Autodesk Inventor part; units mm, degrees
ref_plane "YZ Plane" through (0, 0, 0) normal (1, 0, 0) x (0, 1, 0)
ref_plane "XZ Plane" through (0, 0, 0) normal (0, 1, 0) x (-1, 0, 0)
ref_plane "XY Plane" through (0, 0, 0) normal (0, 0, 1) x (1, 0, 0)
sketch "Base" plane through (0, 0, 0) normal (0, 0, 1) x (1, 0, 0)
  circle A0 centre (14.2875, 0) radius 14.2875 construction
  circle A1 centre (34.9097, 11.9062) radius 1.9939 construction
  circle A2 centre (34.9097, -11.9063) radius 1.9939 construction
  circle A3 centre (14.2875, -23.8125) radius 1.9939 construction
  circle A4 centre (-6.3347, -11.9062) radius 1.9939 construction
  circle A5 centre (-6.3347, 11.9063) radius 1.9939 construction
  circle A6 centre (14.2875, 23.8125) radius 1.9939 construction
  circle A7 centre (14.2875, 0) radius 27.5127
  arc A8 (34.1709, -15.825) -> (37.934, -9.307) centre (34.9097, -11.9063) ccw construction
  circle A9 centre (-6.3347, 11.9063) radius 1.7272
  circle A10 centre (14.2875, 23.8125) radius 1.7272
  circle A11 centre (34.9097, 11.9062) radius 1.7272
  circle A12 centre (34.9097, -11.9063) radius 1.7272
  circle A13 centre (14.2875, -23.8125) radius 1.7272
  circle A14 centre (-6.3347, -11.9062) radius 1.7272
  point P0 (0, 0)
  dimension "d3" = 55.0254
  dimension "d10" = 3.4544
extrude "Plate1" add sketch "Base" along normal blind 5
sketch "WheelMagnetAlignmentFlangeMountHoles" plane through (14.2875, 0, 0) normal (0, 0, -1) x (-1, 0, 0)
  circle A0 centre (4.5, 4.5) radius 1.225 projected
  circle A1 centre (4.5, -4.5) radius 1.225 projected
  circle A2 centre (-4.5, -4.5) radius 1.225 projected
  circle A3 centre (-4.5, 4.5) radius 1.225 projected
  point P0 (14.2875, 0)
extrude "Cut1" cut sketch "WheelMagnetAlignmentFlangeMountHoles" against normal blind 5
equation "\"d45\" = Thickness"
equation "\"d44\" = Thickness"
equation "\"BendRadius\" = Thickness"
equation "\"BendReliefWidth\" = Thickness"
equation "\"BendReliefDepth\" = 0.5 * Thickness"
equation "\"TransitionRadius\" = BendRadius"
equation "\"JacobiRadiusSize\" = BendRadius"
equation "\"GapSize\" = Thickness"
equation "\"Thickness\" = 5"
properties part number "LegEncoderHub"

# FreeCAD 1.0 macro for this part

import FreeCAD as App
import Part
import Sketcher
Q = App.Units.Quantity

doc = App.newDocument("Part")
params = doc.addObject("Spreadsheet::Sheet", "Params")
for row, (alias, value) in enumerate([
    ("pad1_length", "5 mm"),
    ("sketch2_diameter", "2.45 mm"),
    ("pocket1_length", "5 mm"),
], start=1):
    params.set(f"A{row}", alias)
    params.set(f"B{row}", "=" + value)
    params.setAlias(f"B{row}", alias)

body = doc.addObject("PartDesign::Body", "Body")

# Sketch on XY plane
sketch1 = body.newObject("Sketcher::SketchObject", "Sketch")
sketch1.AttachmentSupport = (doc.getObject("XY_Plane"), [""])
sketch1.MapMode = "FlatFace"
sketch1.addGeometry(Part.Circle(App.Vector(14.3, 0, 0), App.Vector(0, 0, 1), 27.5), False)
sketch1.addGeometry(Part.Circle(App.Vector(-6.3, -11.9, 0), App.Vector(0, 0, 1), 1.7), False)
sketch1.addGeometry(Part.Circle(App.Vector(14.3, -23.8, 0), App.Vector(0, 0, 1), 1.7), False)
sketch1.addGeometry(Part.Circle(App.Vector(34.9, -11.9, 0), App.Vector(0, 0, 1), 1.7), False)
sketch1.addGeometry(Part.Circle(App.Vector(-6.3, 11.9, 0), App.Vector(0, 0, 1), 1.7), False)
sketch1.addGeometry(Part.Circle(App.Vector(34.9, 11.9, 0), App.Vector(0, 0, 1), 1.7), False)
sketch1.addGeometry(Part.Circle(App.Vector(14.3, 23.8, 0), App.Vector(0, 0, 1), 1.7), False)
sketch1.addConstraint(Sketcher.Constraint("Equal", 1, 2))
sketch1.addConstraint(Sketcher.Constraint("Equal", 2, 3))
sketch1.addConstraint(Sketcher.Constraint("Equal", 3, 4))
sketch1.addConstraint(Sketcher.Constraint("Equal", 4, 5))
sketch1.addConstraint(Sketcher.Constraint("Equal", 5, 6))
sketch1.addConstraint(Sketcher.Constraint("Symmetric", 1, 3, 4, 3, -1))
sketch1.addConstraint(Sketcher.Constraint("Symmetric", 3, 3, 5, 3, -1))
sketch1.addConstraint(Sketcher.Constraint("Symmetric", 2, 3, 6, 3, -1))
sketch1.addConstraint(Sketcher.Constraint("PointOnObject", 0, 3, -1))
sketch1.addConstraint(Sketcher.Constraint("Horizontal", 1, 3, 3, 3))
sketch1.addConstraint(Sketcher.Constraint("Vertical", 0, 3, 2, 3))
sketch1.addConstraint(Sketcher.Constraint("Diameter", 0, Q("55.0254 mm")))
sketch1.addConstraint(Sketcher.Constraint("Diameter", 1, Q("3.4544 mm")))
sketch1.addConstraint(Sketcher.Constraint("DistanceX", -1, 1, 0, 3, Q("14.2875 mm")))
sketch1.addConstraint(Sketcher.Constraint("DistanceX", 1, 3, -1, 1, Q("6.3347 mm")))
sketch1.addConstraint(Sketcher.Constraint("DistanceY", 1, 3, -1, 1, Q("11.9062 mm")))
sketch1.addConstraint(Sketcher.Constraint("DistanceY", 2, 3, -1, 1, Q("23.8125 mm")))
sketch1.addConstraint(Sketcher.Constraint("DistanceX", -1, 1, 3, 3, Q("34.9097 mm")))
pad1 = body.newObject("PartDesign::Pad", "Pad")
pad1.Profile = sketch1
pad1.setExpression("Length", "Params.pad1_length")

# Sketch on XY plane
sketch2 = body.newObject("Sketcher::SketchObject", "Sketch001")
sketch2.AttachmentSupport = (doc.getObject("XY_Plane"), [""])
sketch2.MapMode = "FlatFace"
sketch2.addGeometry(Part.Circle(App.Vector(9.8, 4.5, 0), App.Vector(0, 0, 1), 1.2), False)
sketch2.addGeometry(Part.Circle(App.Vector(9.8, -4.5, 0), App.Vector(0, 0, 1), 1.2), False)
sketch2.addGeometry(Part.Circle(App.Vector(18.8, -4.5, 0), App.Vector(0, 0, 1), 1.2), False)
sketch2.addGeometry(Part.Circle(App.Vector(18.8, 4.5, 0), App.Vector(0, 0, 1), 1.2), False)
sketch2.addConstraint(Sketcher.Constraint("Equal", 0, 1))
sketch2.addConstraint(Sketcher.Constraint("Equal", 1, 2))
sketch2.addConstraint(Sketcher.Constraint("Equal", 2, 3))
sketch2.addConstraint(Sketcher.Constraint("Symmetric", 0, 3, 1, 3, -1))
sketch2.addConstraint(Sketcher.Constraint("Symmetric", 2, 3, 3, 3, -1))
sketch2.addConstraint(Sketcher.Constraint("Horizontal", 1, 3, 2, 3))
sketch2.addConstraint(Sketcher.Constraint("Diameter", 0, Q("2.45 mm")))
sketch2.addConstraint(Sketcher.Constraint("DistanceY", 1, 3, 0, 3, Q("9 mm")))
sketch2.addConstraint(Sketcher.Constraint("DistanceX", 1, 3, 2, 3, Q("9 mm")))
sketch2.addConstraint(Sketcher.Constraint("DistanceX", -1, 1, 0, 3, Q("9.7875 mm")))
sketch2.setExpression("Constraints[6]", "Params.sketch2_diameter")
pocket1 = body.newObject("PartDesign::Pocket", "Pocket")
pocket1.Profile = sketch2
pocket1.setExpression("Length", "Params.pocket1_length")
pocket1.Reversed = True

doc.recompute()
